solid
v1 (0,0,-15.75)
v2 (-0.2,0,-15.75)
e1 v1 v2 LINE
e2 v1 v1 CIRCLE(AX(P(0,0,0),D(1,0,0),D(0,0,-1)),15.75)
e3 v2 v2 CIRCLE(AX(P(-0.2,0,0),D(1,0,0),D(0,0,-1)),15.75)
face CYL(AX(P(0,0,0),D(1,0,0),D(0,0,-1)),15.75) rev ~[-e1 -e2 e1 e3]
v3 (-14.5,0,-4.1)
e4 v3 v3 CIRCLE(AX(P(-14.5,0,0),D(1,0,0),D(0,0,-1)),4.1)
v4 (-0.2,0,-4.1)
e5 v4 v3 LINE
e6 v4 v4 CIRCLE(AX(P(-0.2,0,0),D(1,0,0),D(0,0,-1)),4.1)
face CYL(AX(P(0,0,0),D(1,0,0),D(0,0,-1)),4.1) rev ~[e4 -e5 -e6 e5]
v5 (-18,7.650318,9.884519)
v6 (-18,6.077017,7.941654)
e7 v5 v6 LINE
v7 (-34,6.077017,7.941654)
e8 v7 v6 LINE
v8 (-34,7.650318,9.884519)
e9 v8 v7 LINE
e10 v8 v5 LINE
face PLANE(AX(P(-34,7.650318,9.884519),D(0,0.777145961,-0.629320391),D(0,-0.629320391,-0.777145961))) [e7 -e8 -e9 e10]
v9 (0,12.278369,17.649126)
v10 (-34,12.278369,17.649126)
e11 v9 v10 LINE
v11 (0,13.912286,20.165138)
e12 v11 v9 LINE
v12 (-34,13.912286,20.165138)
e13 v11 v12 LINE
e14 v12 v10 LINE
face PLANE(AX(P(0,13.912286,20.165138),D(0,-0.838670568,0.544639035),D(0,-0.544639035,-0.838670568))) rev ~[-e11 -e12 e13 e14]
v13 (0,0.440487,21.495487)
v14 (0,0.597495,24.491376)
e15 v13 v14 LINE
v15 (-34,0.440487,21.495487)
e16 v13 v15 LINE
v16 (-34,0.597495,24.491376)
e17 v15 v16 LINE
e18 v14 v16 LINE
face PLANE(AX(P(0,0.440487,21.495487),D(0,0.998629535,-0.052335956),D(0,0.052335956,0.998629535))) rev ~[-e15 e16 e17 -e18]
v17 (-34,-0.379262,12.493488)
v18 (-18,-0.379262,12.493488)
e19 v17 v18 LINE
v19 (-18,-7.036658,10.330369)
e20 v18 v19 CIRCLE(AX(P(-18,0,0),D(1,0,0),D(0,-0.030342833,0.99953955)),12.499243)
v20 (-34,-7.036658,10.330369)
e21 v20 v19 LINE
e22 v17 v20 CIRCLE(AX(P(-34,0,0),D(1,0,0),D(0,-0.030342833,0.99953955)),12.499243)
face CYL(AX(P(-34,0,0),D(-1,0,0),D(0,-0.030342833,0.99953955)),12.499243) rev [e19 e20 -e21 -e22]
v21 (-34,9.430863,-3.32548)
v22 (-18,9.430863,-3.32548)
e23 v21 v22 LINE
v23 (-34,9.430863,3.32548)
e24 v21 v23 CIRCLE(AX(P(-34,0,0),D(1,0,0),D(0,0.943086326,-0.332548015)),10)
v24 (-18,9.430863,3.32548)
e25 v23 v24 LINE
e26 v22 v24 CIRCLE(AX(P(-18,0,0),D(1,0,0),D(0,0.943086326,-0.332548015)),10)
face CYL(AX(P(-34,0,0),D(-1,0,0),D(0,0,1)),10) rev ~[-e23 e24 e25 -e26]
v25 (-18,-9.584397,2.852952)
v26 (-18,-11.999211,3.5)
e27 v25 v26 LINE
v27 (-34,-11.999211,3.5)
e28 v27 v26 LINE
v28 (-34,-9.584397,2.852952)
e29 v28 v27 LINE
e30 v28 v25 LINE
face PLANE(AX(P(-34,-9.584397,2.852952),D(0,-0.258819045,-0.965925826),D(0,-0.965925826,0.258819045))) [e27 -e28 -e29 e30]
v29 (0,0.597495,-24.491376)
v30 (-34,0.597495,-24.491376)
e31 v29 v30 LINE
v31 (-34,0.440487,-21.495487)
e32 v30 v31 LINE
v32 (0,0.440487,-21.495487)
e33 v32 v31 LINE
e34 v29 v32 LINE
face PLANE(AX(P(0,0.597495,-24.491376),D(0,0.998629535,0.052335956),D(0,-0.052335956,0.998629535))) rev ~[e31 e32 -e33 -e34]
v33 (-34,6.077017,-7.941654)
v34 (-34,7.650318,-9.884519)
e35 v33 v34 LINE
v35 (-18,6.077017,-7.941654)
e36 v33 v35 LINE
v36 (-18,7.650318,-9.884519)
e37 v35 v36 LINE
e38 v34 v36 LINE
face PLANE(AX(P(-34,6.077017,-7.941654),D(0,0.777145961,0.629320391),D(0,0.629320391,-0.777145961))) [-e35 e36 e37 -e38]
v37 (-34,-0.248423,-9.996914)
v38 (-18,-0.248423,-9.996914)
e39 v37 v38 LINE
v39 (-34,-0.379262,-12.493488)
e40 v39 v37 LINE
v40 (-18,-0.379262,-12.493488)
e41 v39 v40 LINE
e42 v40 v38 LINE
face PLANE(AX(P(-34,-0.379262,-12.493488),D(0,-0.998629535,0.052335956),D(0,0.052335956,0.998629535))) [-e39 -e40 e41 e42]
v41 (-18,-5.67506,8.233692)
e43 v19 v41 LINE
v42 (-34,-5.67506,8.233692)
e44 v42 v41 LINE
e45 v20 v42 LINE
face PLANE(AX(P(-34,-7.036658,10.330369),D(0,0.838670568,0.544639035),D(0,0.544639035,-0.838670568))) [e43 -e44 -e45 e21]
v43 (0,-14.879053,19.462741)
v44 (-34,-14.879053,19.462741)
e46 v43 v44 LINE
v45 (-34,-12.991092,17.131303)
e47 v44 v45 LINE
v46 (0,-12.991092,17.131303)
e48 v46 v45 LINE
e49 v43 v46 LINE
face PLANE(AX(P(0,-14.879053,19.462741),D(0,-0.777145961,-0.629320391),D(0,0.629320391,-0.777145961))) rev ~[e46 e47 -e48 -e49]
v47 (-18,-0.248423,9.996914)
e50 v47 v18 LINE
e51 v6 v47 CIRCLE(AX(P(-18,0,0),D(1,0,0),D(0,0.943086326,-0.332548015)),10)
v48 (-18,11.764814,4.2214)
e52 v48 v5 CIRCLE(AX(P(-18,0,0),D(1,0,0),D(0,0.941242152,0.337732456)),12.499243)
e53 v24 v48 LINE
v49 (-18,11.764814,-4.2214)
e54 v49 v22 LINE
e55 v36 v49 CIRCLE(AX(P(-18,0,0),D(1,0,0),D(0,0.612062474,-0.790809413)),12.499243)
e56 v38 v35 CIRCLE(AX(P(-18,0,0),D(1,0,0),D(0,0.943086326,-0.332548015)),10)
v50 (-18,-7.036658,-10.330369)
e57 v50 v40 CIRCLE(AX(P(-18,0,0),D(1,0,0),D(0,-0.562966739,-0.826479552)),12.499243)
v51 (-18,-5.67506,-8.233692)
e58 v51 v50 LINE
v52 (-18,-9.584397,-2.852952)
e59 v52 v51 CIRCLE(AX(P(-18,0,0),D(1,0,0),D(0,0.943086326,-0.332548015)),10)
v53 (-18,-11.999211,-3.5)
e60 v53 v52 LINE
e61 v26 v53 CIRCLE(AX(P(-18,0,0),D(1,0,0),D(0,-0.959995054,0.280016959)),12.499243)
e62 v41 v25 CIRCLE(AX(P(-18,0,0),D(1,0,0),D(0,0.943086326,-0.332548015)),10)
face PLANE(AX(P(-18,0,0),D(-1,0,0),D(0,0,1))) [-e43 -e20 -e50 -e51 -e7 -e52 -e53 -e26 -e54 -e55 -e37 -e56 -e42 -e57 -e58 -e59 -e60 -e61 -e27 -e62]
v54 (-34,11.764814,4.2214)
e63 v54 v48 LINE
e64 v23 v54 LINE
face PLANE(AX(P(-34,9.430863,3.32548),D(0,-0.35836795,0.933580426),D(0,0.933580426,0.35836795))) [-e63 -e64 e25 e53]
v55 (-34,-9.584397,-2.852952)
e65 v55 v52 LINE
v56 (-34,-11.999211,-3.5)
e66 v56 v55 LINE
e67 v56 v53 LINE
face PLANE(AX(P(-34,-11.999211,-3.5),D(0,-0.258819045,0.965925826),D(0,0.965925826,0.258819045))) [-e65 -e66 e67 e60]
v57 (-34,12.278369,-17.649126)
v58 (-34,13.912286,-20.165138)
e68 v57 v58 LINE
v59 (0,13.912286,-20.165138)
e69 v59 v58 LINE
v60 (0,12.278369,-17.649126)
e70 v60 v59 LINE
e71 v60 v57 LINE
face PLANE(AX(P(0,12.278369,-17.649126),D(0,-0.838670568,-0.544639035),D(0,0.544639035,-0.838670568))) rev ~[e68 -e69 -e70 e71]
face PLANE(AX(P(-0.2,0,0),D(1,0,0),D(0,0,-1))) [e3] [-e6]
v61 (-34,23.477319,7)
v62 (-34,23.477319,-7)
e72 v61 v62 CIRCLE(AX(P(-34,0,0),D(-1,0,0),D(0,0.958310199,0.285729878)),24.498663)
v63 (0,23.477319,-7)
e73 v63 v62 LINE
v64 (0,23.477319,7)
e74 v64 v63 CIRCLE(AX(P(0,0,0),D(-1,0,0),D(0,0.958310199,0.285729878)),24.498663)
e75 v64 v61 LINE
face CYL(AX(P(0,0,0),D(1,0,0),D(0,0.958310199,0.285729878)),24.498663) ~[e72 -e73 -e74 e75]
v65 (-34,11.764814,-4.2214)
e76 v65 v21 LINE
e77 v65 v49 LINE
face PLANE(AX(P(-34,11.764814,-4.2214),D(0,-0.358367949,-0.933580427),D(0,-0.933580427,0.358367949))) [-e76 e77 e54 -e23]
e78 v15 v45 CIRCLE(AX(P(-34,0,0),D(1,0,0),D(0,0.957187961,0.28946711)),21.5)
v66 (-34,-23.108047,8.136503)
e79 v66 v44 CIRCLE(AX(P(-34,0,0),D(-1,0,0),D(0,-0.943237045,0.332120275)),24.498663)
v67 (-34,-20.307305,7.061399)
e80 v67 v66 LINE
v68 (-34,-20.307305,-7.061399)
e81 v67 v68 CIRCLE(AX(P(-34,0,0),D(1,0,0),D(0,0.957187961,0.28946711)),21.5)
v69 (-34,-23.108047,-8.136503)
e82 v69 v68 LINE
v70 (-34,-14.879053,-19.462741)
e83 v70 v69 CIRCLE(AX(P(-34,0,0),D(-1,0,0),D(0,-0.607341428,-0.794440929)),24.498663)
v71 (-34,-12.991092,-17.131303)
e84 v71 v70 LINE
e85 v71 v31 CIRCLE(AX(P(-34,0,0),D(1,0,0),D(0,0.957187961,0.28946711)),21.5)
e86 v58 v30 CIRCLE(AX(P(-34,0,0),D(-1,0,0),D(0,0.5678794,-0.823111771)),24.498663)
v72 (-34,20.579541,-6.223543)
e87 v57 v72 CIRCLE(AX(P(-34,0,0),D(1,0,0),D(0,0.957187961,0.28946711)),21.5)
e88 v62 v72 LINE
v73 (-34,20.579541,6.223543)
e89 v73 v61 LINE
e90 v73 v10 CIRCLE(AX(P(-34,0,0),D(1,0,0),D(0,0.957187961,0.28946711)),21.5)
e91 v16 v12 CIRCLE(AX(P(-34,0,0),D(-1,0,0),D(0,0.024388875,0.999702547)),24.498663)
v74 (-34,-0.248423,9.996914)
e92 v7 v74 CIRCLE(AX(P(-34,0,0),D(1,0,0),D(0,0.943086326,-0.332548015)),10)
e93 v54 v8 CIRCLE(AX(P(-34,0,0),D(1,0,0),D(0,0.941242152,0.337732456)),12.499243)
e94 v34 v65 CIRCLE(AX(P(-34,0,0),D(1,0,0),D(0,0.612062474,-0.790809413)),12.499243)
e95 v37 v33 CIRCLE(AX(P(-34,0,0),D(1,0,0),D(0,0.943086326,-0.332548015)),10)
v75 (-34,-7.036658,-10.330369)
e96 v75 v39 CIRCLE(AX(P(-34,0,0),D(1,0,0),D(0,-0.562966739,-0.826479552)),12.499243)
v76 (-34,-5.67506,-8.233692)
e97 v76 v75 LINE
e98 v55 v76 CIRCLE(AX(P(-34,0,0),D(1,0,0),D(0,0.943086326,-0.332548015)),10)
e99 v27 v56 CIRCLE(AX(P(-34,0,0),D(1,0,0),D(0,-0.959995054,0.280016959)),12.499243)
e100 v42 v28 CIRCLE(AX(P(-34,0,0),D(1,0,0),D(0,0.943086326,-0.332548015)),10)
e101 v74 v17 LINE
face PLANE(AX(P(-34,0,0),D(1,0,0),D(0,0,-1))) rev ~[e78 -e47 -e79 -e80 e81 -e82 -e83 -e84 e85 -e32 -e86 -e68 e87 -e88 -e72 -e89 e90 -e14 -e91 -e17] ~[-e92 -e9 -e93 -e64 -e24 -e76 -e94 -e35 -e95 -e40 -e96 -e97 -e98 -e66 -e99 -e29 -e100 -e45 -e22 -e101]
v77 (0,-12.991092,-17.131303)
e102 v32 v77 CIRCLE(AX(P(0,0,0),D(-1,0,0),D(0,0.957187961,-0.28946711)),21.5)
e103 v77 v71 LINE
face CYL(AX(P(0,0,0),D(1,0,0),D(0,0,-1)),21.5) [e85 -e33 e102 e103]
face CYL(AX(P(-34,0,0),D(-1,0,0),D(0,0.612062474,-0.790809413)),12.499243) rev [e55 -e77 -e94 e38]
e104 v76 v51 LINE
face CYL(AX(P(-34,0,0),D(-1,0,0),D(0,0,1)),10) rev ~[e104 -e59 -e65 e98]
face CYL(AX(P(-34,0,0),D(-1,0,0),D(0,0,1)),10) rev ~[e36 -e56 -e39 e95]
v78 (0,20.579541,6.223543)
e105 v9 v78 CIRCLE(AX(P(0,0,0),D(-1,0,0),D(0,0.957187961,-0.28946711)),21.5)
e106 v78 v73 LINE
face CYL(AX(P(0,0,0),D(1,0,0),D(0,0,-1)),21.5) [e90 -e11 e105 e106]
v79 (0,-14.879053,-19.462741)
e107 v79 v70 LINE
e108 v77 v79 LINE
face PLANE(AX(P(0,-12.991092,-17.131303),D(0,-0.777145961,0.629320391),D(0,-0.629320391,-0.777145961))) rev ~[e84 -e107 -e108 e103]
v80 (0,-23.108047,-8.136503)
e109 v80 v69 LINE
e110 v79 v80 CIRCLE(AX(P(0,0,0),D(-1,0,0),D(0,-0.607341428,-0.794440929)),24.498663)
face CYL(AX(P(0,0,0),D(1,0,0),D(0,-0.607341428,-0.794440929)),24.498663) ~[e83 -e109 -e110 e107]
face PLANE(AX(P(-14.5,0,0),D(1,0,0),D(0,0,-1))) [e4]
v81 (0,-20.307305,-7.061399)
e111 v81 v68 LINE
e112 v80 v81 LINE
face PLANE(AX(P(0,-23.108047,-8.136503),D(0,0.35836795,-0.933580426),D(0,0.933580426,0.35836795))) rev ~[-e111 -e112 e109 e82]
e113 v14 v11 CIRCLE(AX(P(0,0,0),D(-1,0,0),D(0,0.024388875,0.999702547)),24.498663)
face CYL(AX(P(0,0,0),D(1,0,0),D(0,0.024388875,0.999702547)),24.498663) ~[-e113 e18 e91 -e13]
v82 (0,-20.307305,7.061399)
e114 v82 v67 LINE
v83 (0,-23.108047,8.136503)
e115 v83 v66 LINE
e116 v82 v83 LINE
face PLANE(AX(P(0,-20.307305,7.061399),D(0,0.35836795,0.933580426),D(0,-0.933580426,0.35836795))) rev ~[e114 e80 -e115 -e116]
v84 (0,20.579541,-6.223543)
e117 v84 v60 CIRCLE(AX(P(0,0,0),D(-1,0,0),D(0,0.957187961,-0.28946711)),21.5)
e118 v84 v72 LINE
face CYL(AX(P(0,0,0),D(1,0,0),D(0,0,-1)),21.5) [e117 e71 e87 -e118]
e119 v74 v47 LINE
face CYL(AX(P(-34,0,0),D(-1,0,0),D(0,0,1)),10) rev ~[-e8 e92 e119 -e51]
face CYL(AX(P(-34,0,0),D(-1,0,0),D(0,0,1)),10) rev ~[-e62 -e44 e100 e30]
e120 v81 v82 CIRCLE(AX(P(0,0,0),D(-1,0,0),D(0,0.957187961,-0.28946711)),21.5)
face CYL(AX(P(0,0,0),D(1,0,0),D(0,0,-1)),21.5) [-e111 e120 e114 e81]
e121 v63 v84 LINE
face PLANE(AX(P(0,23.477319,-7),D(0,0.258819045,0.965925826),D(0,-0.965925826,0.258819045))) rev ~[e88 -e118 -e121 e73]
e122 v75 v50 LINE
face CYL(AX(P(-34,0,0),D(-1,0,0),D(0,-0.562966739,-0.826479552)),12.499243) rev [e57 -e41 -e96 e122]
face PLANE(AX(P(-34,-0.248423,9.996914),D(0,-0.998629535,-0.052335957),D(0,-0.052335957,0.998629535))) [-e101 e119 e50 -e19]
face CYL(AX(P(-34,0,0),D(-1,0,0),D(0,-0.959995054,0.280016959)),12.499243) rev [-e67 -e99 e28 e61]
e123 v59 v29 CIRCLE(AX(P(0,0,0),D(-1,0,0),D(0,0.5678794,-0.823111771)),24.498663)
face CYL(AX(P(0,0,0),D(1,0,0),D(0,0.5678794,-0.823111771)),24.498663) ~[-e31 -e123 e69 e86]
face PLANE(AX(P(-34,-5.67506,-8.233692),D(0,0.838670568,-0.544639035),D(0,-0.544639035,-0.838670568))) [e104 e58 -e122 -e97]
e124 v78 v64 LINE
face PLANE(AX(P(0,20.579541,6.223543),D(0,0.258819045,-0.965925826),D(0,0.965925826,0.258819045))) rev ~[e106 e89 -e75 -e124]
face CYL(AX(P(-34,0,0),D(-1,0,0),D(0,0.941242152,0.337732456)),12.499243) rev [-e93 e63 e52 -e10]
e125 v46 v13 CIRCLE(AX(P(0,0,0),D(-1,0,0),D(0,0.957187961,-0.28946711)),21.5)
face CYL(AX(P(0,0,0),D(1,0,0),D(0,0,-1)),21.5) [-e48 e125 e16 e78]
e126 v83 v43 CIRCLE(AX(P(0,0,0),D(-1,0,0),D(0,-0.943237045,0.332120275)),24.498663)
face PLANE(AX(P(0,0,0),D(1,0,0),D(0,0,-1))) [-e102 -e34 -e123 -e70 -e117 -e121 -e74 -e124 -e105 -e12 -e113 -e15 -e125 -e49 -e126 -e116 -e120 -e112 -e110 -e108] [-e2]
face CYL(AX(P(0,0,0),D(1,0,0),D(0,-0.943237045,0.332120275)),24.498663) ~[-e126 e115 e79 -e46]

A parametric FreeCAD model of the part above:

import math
import FreeCAD as App
import Part
import Sketcher

V = App.Vector
Q = App.Units.Quantity

doc = App.newDocument("Part")
body = doc.addObject("PartDesign::Body", "Body")

sketch1 = body.newObject("Sketcher::SketchObject", "Sketch")
sketch1.AttachmentSupport = (doc.getObject("YZ_Plane"), [""])
sketch1.MapMode = "FlatFace"
sketch1.addGeometry(Part.Circle(V(0, 0, 0), V(0, 0, 1), 22), False)
sketch1.addConstraint([
    Sketcher.Constraint("Coincident", 0, 3, -1, 1),
    Sketcher.Constraint("Diameter", 0, Q("43 mm")),
])
pad1 = body.newObject("PartDesign::Pad", "Pad")
pad1.Profile = sketch1
pad1.Length = 34
pad1.Reversed = True

sketch2 = body.newObject("Sketcher::SketchObject", "Sketch001")
sketch2.AttachmentSupport = (doc.getObject("YZ_Plane"), [""])
sketch2.MapMode = "FlatFace"
sketch2.addGeometry([
    Part.LineSegment(V(23.5, 7, 0), V(20.6, 6.2, 0)),
    Part.ArcOfCircle(Part.Circle(V(0, 0, 0), V(0, 0, 1), 21.5), math.radians(-17), math.radians(17)),
    Part.LineSegment(V(20.6, -6.2, 0), V(23.5, -7, 0)),
    Part.ArcOfCircle(Part.Circle(V(0, 0, 0), V(0, 0, 1), 24.5), math.radians(-17), math.radians(17)),
], False)
sketch2.addConstraint([
    Sketcher.Constraint("Coincident", 0, 2, 1, 2),
    Sketcher.Constraint("Coincident", 1, 1, 2, 1),
    Sketcher.Constraint("Coincident", 2, 2, 3, 1),
    Sketcher.Constraint("Coincident", 3, 2, 0, 1),
    Sketcher.Constraint("Coincident", 1, 3, -1, 1),
    Sketcher.Constraint("Coincident", 3, 3, -1, 1),
    Sketcher.Constraint("Vertical", 0, 2, 1, 1),
    Sketcher.Constraint("Vertical", 2, 2, 3, 2),
    Sketcher.Constraint("Radius", 1, Q("21.5 mm")),
    Sketcher.Constraint("Angle", 0, Q("-165 deg")),
    Sketcher.Constraint("Distance", 0, Q("3 mm")),
    Sketcher.Constraint("DistanceY", 2, 2, -1, 1, Q("7 mm")),
])
pad2 = body.newObject("PartDesign::Pad", "Pad001")
pad2.Profile = sketch2
pad2.Length = 34
pad2.Reversed = True
doc.recompute()

polarpattern = body.newObject("PartDesign::PolarPattern", "PolarPattern")
polarpattern.Originals = [pad2]
polarpattern.Axis = (doc.getObject("X_Axis"), [""])
polarpattern.Angle = 360
polarpattern.Occurrences = 5
body.Tip = polarpattern

sketch3 = body.newObject("Sketcher::SketchObject", "Sketch002")
sketch3.AttachmentSupport = (doc.getObject("YZ_Plane"), [""])
sketch3.MapMode = "FlatFace"
sketch3.AttachmentOffset = App.Placement(V(0, 0, -34), App.Rotation())
sketch3.addGeometry(Part.Circle(V(0, 0, 0), V(0, 0, 1), 10), False)
sketch3.addConstraint([
    Sketcher.Constraint("Coincident", 0, 3, -1, 1),
    Sketcher.Constraint("Diameter", 0, Q("20 mm")),
])
pocket1 = body.newObject("PartDesign::Pocket", "Pocket")
pocket1.Profile = sketch3
pocket1.Length = 16
pocket1.Reversed = True

sketch4 = body.newObject("Sketcher::SketchObject", "Sketch003")
sketch4.AttachmentSupport = (doc.getObject("YZ_Plane"), [""])
sketch4.MapMode = "FlatFace"
sketch4.AttachmentOffset = App.Placement(V(0, 0, -34), App.Rotation())
sketch4.addGeometry([
    Part.LineSegment(V(7.7, -9.9, 0), V(6.1, -7.9, 0)),
    Part.ArcOfCircle(Part.Circle(V(0, 0, 0), V(0, 0, 1), 10), math.radians(-53), math.radians(-19)),
    Part.LineSegment(V(9.4, -3.3, 0), V(11.8, -4.2, 0)),
    Part.ArcOfCircle(Part.Circle(V(0, 0, 0), V(0, 0, 1), 12.5), math.radians(-52), math.radians(-20)),
], False)
sketch4.addConstraint([
    Sketcher.Constraint("Coincident", 0, 2, 1, 1),
    Sketcher.Constraint("Coincident", 1, 2, 2, 1),
    Sketcher.Constraint("Coincident", 2, 2, 3, 2),
    Sketcher.Constraint("Coincident", 3, 1, 0, 1),
    Sketcher.Constraint("Coincident", 1, 3, -1, 1),
    Sketcher.Constraint("Coincident", 3, 3, -1, 1),
    Sketcher.Constraint("Equal", 0, 2),
    Sketcher.Constraint("Radius", 1, Q("10 mm")),
    Sketcher.Constraint("Angle", 0, Q("129 deg")),
    Sketcher.Constraint("Angle", 2, Q("-21 deg")),
    Sketcher.Constraint("Distance", 0, Q("2.5 mm")),
    Sketcher.Constraint("Radius", 3, Q("12.499243 mm")),
])
pocket2 = body.newObject("PartDesign::Pocket", "Pocket001")
pocket2.Profile = sketch4
pocket2.Length = 16
pocket2.Reversed = True
doc.recompute()

polarpattern2 = body.newObject("PartDesign::PolarPattern", "PolarPattern001")
polarpattern2.Originals = [pocket2]
polarpattern2.Axis = (doc.getObject("X_Axis"), [""])
polarpattern2.Angle = 360
polarpattern2.Occurrences = 5
body.Tip = polarpattern2

sketch5 = body.newObject("Sketcher::SketchObject", "Sketch004")
sketch5.AttachmentSupport = (doc.getObject("YZ_Plane"), [""])
sketch5.MapMode = "FlatFace"
sketch5.addGeometry(Part.Circle(V(0, 0, 0), V(0, 0, 1), 16), False)
sketch5.addConstraint([
    Sketcher.Constraint("Coincident", 0, 3, -1, 1),
    Sketcher.Constraint("Diameter", 0, Q("31.5 mm")),
])
pocket3 = body.newObject("PartDesign::Pocket", "Pocket002")
pocket3.Profile = sketch5
pocket3.Length = 0.2

sketch6 = body.newObject("Sketcher::SketchObject", "Sketch005")
sketch6.AttachmentSupport = (doc.getObject("YZ_Plane"), [""])
sketch6.MapMode = "FlatFace"
sketch6.addGeometry(Part.Circle(V(0, 0, 0), V(0, 0, 1), 4.1), False)
sketch6.addConstraint([
    Sketcher.Constraint("Coincident", 0, 3, -1, 1),
    Sketcher.Constraint("Diameter", 0, Q("8.2 mm")),
])
pocket4 = body.newObject("PartDesign::Pocket", "Pocket003")
pocket4.Profile = sketch6
pocket4.Length = 14.5

doc.recompute()
